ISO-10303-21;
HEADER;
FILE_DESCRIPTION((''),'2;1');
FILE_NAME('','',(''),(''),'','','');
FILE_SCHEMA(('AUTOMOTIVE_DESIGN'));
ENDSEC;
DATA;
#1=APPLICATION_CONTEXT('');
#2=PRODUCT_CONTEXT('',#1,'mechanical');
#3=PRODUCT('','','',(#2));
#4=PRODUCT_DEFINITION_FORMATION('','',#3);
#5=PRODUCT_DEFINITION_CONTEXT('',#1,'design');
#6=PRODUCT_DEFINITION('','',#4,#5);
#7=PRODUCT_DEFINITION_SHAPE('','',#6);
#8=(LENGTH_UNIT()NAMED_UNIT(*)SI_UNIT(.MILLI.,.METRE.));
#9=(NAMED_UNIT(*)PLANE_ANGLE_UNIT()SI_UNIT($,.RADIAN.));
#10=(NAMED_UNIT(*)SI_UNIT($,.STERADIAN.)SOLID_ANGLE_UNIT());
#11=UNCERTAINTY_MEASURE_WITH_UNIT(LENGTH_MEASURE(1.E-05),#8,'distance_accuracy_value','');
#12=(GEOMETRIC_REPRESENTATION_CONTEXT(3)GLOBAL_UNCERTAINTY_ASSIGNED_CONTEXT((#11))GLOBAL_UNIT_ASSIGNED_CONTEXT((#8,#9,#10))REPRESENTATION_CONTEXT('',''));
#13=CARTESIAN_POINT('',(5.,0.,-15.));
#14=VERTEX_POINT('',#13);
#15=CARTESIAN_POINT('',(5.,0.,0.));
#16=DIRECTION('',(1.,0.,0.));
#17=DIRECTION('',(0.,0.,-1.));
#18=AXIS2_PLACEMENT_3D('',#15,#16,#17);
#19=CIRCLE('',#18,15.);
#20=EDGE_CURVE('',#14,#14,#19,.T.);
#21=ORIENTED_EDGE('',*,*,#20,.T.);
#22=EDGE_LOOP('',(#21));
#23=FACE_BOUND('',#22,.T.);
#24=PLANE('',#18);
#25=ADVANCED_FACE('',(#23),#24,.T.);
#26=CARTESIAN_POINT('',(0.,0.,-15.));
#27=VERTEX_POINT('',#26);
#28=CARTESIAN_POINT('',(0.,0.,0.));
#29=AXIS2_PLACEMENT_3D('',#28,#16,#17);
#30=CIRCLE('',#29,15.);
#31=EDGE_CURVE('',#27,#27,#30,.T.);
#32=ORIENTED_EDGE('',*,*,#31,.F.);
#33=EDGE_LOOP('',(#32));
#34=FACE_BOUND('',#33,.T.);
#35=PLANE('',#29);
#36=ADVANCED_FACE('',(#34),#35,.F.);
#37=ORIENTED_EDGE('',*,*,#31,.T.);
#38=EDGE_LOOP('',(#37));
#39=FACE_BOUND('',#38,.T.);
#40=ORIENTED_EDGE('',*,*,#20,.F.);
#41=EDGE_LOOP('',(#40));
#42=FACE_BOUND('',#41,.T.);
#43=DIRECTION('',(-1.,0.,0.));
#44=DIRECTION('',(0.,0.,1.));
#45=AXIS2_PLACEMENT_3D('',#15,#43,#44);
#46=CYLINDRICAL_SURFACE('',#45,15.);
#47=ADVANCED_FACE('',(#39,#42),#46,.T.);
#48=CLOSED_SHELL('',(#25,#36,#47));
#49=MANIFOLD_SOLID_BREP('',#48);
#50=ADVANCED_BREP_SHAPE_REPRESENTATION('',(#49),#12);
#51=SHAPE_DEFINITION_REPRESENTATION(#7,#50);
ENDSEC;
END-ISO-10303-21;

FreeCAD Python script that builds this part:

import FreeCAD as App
import Part
import Sketcher

V = App.Vector

doc = App.newDocument("Part")
params = doc.addObject("Spreadsheet::Sheet", "Params")
for row, (alias, value) in enumerate([
    ("sketch1_diameter", "30 mm"),
    ("pad1_length", "5 mm"),
], start=1):
    params.set(f"A{row}", alias)
    params.set(f"B{row}", "=" + value)
    params.setAlias(f"B{row}", alias)

body = doc.addObject("PartDesign::Body", "Body")

# Sketch on YZ plane
sketch1 = body.newObject("Sketcher::SketchObject", "Sketch")
sketch1.AttachmentSupport = (doc.getObject("YZ_Plane"), [""])
sketch1.MapMode = "FlatFace"
sketch1.addGeometry(Part.Circle(V(0, 0, 0), V(0, 0, 1), 15), False)
sketch1.addConstraint([
    Sketcher.Constraint("Coincident", 0, 3, -1, 1),
    Sketcher.Constraint("Diameter", 0, 30.0),
])
sketch1.setExpression("Constraints[1]", "Params.sketch1_diameter")
pad1 = body.newObject("PartDesign::Pad", "Pad")
pad1.Profile = sketch1
pad1.setExpression("Length", "Params.pad1_length")

doc.recompute()
